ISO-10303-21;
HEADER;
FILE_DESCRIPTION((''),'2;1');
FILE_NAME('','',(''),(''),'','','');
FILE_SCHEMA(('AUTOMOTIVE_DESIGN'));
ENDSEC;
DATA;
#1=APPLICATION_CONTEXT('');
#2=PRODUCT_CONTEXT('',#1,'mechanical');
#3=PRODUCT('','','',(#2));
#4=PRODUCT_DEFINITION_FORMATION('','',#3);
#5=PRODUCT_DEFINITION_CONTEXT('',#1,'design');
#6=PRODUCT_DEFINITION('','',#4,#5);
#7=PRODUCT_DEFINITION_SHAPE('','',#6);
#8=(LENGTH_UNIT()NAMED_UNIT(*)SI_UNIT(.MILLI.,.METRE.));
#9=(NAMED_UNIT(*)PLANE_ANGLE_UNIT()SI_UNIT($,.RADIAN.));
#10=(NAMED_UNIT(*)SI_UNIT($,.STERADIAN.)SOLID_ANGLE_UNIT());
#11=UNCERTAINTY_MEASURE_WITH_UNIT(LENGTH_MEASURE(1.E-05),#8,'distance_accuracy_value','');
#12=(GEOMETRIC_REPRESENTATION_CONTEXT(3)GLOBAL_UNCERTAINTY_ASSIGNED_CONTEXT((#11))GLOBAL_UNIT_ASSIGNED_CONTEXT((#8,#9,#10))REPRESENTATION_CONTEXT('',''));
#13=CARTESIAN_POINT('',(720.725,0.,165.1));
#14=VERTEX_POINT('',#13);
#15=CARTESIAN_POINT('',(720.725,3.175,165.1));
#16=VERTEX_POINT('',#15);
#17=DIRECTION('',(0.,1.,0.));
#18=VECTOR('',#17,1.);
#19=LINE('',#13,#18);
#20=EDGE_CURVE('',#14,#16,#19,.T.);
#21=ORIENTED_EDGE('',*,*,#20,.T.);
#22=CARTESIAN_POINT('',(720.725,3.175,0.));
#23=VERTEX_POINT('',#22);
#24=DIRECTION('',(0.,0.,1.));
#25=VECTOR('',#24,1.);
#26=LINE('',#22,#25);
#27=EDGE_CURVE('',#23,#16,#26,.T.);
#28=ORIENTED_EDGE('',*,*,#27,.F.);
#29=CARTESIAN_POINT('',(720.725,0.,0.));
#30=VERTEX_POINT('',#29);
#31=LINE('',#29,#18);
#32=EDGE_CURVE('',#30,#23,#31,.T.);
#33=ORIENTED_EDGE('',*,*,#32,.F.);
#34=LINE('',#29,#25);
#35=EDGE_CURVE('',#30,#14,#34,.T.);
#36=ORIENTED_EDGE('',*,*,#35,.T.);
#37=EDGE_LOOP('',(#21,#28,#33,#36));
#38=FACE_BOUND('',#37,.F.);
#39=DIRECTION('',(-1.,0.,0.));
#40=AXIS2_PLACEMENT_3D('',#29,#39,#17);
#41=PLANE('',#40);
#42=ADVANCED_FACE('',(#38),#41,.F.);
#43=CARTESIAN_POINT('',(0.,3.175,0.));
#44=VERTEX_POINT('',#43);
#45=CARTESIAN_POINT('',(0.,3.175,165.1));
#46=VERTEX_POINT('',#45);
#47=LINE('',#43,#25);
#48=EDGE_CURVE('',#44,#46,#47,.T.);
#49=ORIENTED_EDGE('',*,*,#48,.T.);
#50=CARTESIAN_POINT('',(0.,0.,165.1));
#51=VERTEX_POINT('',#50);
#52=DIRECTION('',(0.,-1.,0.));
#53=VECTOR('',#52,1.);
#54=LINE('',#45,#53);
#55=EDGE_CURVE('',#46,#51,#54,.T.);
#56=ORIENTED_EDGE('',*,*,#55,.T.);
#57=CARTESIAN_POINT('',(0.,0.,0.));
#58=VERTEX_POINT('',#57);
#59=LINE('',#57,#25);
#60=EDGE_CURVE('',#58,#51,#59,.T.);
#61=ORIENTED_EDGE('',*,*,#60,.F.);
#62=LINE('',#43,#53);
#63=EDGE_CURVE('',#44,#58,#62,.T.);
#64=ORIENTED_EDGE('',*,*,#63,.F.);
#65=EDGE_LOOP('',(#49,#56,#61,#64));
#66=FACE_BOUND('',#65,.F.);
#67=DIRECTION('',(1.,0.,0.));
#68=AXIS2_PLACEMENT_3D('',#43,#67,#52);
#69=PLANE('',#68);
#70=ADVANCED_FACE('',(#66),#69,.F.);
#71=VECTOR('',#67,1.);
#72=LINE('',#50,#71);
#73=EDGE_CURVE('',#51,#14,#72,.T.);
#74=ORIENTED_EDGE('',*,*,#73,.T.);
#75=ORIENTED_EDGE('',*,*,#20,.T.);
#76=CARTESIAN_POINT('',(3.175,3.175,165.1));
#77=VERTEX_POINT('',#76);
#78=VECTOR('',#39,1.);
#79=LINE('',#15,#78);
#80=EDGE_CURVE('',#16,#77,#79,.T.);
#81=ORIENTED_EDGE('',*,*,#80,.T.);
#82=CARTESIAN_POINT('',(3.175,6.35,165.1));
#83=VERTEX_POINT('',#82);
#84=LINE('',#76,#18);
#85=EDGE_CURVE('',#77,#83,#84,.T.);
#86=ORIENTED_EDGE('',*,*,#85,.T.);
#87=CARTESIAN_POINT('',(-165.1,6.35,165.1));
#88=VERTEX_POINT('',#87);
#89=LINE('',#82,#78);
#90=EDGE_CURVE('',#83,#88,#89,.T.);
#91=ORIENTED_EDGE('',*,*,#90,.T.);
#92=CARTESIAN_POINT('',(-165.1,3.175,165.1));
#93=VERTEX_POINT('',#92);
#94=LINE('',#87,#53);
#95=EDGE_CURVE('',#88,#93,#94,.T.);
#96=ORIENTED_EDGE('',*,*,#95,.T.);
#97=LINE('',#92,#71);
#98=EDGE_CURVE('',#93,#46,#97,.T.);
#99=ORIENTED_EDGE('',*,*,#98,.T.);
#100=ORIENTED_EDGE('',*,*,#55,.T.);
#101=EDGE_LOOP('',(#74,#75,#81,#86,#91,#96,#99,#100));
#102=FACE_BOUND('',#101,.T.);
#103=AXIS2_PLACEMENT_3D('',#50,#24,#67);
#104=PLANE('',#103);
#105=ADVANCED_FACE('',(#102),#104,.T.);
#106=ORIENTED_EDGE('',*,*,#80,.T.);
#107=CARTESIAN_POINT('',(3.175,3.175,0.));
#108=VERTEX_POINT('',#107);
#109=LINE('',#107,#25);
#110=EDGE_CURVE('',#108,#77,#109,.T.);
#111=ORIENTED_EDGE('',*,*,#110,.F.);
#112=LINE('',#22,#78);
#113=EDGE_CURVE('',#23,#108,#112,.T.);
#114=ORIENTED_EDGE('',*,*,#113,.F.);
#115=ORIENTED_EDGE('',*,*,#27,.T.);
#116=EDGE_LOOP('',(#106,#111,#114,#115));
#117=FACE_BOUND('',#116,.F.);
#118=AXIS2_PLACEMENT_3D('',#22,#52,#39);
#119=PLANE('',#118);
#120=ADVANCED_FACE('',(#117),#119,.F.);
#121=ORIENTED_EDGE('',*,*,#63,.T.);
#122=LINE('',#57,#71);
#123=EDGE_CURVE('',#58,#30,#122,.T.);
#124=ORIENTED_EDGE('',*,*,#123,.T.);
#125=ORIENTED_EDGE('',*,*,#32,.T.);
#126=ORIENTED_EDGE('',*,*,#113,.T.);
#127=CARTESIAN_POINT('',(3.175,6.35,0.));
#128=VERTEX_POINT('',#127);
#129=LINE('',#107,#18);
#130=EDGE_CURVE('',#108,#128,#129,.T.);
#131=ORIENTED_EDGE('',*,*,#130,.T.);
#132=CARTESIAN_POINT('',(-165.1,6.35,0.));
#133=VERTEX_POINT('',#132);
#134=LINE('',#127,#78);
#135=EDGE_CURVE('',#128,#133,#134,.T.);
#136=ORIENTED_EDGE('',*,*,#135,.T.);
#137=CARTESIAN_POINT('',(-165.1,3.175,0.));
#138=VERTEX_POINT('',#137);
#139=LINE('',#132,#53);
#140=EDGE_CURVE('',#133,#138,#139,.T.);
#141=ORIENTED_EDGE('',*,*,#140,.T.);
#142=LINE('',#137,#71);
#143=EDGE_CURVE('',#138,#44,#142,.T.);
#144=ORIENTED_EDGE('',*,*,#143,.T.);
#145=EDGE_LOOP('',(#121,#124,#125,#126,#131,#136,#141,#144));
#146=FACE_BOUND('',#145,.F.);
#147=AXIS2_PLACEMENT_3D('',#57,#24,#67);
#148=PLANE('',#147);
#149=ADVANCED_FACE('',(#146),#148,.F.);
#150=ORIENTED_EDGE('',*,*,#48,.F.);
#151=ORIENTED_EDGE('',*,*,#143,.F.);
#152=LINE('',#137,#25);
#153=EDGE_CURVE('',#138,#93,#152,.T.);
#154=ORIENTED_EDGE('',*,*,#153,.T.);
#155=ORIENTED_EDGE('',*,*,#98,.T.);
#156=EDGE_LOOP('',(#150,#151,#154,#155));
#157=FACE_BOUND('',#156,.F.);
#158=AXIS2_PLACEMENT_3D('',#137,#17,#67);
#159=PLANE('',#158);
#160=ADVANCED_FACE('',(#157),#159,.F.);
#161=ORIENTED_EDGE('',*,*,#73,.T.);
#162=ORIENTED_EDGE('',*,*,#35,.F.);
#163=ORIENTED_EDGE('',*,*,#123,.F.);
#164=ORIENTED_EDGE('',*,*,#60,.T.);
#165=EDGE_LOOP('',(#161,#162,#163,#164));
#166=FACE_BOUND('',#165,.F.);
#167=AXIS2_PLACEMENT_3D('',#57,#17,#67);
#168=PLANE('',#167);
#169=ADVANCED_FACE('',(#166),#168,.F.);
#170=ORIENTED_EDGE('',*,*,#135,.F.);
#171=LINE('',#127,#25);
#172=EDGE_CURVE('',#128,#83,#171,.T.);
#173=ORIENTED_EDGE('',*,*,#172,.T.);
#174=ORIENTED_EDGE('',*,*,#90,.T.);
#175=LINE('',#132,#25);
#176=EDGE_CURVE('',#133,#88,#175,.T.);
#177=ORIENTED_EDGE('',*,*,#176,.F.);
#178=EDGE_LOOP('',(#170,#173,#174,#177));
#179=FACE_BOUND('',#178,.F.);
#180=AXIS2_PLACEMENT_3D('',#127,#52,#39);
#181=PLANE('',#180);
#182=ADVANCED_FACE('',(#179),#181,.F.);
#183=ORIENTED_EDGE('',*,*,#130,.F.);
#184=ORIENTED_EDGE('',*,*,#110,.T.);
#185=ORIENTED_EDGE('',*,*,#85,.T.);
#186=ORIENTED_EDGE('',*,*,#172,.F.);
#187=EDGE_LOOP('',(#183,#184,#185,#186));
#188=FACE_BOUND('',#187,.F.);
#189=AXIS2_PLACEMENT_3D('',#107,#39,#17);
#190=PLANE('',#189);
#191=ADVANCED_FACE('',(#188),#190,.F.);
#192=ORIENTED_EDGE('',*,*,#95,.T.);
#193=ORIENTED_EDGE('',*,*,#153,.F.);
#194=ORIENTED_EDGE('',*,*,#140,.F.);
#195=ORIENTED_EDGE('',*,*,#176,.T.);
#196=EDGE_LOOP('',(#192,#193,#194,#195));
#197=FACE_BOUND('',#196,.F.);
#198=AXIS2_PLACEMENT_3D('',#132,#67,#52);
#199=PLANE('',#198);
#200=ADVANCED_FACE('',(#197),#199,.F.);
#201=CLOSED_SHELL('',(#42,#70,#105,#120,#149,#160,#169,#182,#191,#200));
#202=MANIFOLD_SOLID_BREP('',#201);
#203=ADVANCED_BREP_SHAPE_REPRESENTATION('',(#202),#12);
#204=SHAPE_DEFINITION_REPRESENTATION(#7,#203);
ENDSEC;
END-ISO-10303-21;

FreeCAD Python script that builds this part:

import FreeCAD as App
import Part
import Sketcher
from FreeCAD import Vector
Q = App.Units.Quantity


def add_polygon(sketch, points):
    """Adds a closed chain of lines whose ends are joined by coincident constraints."""
    first, n = sketch.GeometryCount, len(points)
    for a, b in zip(points, points[1:] + points[:1]):
        sketch.addGeometry(Part.LineSegment(App.Vector(*a, 0), App.Vector(*b, 0)), False)
    for i in range(n):
        sketch.addConstraint(Sketcher.Constraint("Coincident", first + i, 2, first + (i + 1) % n, 1))

doc = App.newDocument("Part")
body = doc.addObject("PartDesign::Body", "Body")

sketch1 = doc.addObject("Sketcher::SketchObject", "Sketch")
body.addObject(sketch1)
sketch1.AttachmentSupport = (doc.XY_Plane, [""])
sketch1.MapMode = "FlatFace"
add_polygon(sketch1, [(0, 3.2), (0, 0), (720.7, 0), (720.7, 3.2), (3.2, 3.2), (3.2, 6.3), (-165.1, 6.3), (-165.1, 3.2)])
sketch1.addConstraint([
    Sketcher.Constraint("Vertical", 0),
    Sketcher.Constraint("Horizontal", 1),
    Sketcher.Constraint("Vertical", 2),
    Sketcher.Constraint("Horizontal", 3),
    Sketcher.Constraint("Vertical", 4),
    Sketcher.Constraint("Horizontal", 5),
    Sketcher.Constraint("Vertical", 6),
    Sketcher.Constraint("Horizontal", 7),
    Sketcher.Constraint("Coincident", 0, 2, -1, 1),
    Sketcher.Constraint("Horizontal", 3, 2, 6, 2),
    Sketcher.Constraint("Equal", 2, 4),
    Sketcher.Constraint("DistanceX", 7, 1, 7, 2, Q("6.5 in")),
    Sketcher.Constraint("DistanceX", 1, 1, 1, 2, Q("28.375 in")),
    Sketcher.Constraint("DistanceY", 0, 2, 0, 1, Q("0.125 in")),
    Sketcher.Constraint("DistanceX", -1, 1, 3, 2, Q("0.125 in")),
])
pad1 = doc.addObject("PartDesign::Pad", "Pad")
body.addObject(pad1)
pad1.Profile = sketch1
pad1.Length = Q("6.5 in")

doc.recompute()
